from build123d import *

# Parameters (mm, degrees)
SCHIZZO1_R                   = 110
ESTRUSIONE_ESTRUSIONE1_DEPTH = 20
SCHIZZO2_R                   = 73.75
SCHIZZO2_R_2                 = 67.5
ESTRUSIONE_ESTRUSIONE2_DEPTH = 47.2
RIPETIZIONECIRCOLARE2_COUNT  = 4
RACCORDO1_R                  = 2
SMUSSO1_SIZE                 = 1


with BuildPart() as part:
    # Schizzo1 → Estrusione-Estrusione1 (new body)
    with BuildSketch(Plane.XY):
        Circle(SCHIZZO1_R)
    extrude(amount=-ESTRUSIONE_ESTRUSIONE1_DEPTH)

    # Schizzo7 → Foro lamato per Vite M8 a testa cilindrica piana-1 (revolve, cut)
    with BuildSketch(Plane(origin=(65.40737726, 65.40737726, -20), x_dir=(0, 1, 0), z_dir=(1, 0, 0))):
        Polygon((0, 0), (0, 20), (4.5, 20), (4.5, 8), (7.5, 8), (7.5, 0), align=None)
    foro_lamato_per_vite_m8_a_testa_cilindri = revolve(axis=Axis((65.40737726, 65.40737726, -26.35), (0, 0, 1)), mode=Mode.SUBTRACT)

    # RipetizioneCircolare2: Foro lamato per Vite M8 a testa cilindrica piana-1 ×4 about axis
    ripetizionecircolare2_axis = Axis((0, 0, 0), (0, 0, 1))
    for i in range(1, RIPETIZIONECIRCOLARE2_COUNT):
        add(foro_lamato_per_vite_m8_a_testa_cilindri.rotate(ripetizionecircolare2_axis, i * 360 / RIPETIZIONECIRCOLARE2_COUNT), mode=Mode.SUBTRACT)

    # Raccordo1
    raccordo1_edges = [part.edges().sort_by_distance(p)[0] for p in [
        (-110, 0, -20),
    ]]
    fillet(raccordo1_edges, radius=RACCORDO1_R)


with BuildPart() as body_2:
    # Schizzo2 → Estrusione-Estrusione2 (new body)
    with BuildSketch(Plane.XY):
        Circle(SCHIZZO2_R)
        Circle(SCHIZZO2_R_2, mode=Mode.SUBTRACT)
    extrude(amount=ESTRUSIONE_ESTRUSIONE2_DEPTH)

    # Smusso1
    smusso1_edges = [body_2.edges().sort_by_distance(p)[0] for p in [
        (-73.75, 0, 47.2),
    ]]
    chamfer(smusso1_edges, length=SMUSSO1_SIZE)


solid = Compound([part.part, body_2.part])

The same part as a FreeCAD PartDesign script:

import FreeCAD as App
import Part
import Sketcher
from FreeCAD import Vector
Q = App.Units.Quantity


def edges_at(feature, points):
    """Names of the edges that pass closest to the given points."""
    edges = feature.Shape.Edges
    near = lambda p: min(range(len(edges)), key=lambda i: edges[i].distToShape(Part.Vertex(*p))[0])
    return sorted({f"Edge{near(p) + 1}" for p in points})


def add_polygon(sketch, points):
    """Adds a closed chain of lines whose ends are joined by coincident constraints."""
    first, n = sketch.GeometryCount, len(points)
    for a, b in zip(points, points[1:] + points[:1]):
        sketch.addGeometry(Part.LineSegment(App.Vector(*a, 0), App.Vector(*b, 0)), False)
    for i in range(n):
        sketch.addConstraint(Sketcher.Constraint("Coincident", first + i, 2, first + (i + 1) % n, 1))

doc = App.newDocument("Part")
body = doc.addObject("PartDesign::Body", "Body")

sketch1 = doc.addObject("Sketcher::SketchObject", "Sketch")
body.addObject(sketch1)
sketch1.AttachmentSupport = (doc.XY_Plane, [""])
sketch1.MapMode = "FlatFace"
sketch1.addGeometry(Part.Circle(Vector(0, 0, 0), Vector(0, 0, 1), 110), False)
sketch1.addConstraint([
    Sketcher.Constraint("Coincident", 0, 3, -1, 1),
    Sketcher.Constraint("Diameter", 0, Q("220 mm")),
])
pad1 = doc.addObject("PartDesign::Pad", "Pad")
body.addObject(pad1)
pad1.Profile = sketch1
pad1.Length = 20
pad1.Reversed = True

sketch2 = doc.addObject("Sketcher::SketchObject", "Sketch001")
body.addObject(sketch2)
sketch2.AttachmentSupport = (doc.YZ_Plane, [""])
sketch2.MapMode = "FlatFace"
sketch2.AttachmentOffset = App.Placement(Vector(0, 0, 65.407377), App.Rotation())
add_polygon(sketch2, [(65.407377, 0), (65.407377, -20), (72.907377, -20), (72.907377, -12), (69.907377, -12), (69.907377, 0)])
sketch2.addGeometry(Part.LineSegment(Vector(65.407377, -20, 0), Vector(65.407377, 0, 0)), True)
sketch2.addConstraint([
    Sketcher.Constraint("Vertical", 0),
    Sketcher.Constraint("Horizontal", 1),
    Sketcher.Constraint("Vertical", 2),
    Sketcher.Constraint("Horizontal", 3),
    Sketcher.Constraint("Vertical", 4),
    Sketcher.Constraint("Horizontal", 5),
    Sketcher.Constraint("Vertical", 6),
    Sketcher.Constraint("Coincident", 6, 1, 0, 2),
    Sketcher.Constraint("PointOnObject", 4, 2, -1),
    Sketcher.Constraint("PointOnObject", 6, 2, -1),
    Sketcher.Constraint("DistanceX", 3, 2, 3, 1, Q("3 mm")),
    Sketcher.Constraint("DistanceY", 0, 2, 0, 1, Q("20 mm")),
    Sketcher.Constraint("DistanceY", 2, 1, 2, 2, Q("8 mm")),
    Sketcher.Constraint("DistanceX", 1, 1, 1, 2, Q("7.5 mm")),
    Sketcher.Constraint("DistanceX", -1, 1, 0, 2, Q("65.407377 mm")),
])
groove = doc.addObject("PartDesign::Groove", "Groove")
body.addObject(groove)
groove.Profile = sketch2
groove.ReferenceAxis = (sketch2, ["Axis0"])
groove.Angle = 360
doc.recompute()

polarpattern = doc.addObject("PartDesign::PolarPattern", "PolarPattern")
body.addObject(polarpattern)
polarpattern.Originals = [groove]
polarpattern.Axis = (doc.Z_Axis, [""])
polarpattern.Angle = 360
polarpattern.Occurrences = 4
body.Tip = polarpattern
doc.recompute()

fillet = doc.addObject("PartDesign::Fillet", "Fillet")
body.addObject(fillet)
fillet.Base = (polarpattern, edges_at(polarpattern, [(-110, 0, -20)]))
fillet.Radius = 2
body2 = doc.addObject("PartDesign::Body", "Body001")

sketch3 = doc.addObject("Sketcher::SketchObject", "Sketch002")
body2.addObject(sketch3)
sketch3.AttachmentSupport = (doc.getObject("XY_Plane001"), [""])
sketch3.MapMode = "FlatFace"
sketch3.addGeometry([
    Part.Circle(Vector(0, 0, 0), Vector(0, 0, 1), 73.75),
    Part.Circle(Vector(0, 0, 0), Vector(0, 0, 1), 67.5),
], False)
sketch3.addConstraint([
    Sketcher.Constraint("Coincident", 0, 3, -1, 1),
    Sketcher.Constraint("Coincident", 1, 3, -1, 1),
    Sketcher.Constraint("Diameter", 1, Q("135 mm")),
    Sketcher.Constraint("Diameter", 0, Q("147.5 mm")),
])
pad2 = doc.addObject("PartDesign::Pad", "Pad001")
body2.addObject(pad2)
pad2.Profile = sketch3
pad2.Length = 47.2
doc.recompute()

chamfer = doc.addObject("PartDesign::Chamfer", "Chamfer")
body2.addObject(chamfer)
chamfer.Base = (pad2, edges_at(pad2, [(-73.75, 0, 47.2)]))
chamfer.Size = 1

doc.recompute()
